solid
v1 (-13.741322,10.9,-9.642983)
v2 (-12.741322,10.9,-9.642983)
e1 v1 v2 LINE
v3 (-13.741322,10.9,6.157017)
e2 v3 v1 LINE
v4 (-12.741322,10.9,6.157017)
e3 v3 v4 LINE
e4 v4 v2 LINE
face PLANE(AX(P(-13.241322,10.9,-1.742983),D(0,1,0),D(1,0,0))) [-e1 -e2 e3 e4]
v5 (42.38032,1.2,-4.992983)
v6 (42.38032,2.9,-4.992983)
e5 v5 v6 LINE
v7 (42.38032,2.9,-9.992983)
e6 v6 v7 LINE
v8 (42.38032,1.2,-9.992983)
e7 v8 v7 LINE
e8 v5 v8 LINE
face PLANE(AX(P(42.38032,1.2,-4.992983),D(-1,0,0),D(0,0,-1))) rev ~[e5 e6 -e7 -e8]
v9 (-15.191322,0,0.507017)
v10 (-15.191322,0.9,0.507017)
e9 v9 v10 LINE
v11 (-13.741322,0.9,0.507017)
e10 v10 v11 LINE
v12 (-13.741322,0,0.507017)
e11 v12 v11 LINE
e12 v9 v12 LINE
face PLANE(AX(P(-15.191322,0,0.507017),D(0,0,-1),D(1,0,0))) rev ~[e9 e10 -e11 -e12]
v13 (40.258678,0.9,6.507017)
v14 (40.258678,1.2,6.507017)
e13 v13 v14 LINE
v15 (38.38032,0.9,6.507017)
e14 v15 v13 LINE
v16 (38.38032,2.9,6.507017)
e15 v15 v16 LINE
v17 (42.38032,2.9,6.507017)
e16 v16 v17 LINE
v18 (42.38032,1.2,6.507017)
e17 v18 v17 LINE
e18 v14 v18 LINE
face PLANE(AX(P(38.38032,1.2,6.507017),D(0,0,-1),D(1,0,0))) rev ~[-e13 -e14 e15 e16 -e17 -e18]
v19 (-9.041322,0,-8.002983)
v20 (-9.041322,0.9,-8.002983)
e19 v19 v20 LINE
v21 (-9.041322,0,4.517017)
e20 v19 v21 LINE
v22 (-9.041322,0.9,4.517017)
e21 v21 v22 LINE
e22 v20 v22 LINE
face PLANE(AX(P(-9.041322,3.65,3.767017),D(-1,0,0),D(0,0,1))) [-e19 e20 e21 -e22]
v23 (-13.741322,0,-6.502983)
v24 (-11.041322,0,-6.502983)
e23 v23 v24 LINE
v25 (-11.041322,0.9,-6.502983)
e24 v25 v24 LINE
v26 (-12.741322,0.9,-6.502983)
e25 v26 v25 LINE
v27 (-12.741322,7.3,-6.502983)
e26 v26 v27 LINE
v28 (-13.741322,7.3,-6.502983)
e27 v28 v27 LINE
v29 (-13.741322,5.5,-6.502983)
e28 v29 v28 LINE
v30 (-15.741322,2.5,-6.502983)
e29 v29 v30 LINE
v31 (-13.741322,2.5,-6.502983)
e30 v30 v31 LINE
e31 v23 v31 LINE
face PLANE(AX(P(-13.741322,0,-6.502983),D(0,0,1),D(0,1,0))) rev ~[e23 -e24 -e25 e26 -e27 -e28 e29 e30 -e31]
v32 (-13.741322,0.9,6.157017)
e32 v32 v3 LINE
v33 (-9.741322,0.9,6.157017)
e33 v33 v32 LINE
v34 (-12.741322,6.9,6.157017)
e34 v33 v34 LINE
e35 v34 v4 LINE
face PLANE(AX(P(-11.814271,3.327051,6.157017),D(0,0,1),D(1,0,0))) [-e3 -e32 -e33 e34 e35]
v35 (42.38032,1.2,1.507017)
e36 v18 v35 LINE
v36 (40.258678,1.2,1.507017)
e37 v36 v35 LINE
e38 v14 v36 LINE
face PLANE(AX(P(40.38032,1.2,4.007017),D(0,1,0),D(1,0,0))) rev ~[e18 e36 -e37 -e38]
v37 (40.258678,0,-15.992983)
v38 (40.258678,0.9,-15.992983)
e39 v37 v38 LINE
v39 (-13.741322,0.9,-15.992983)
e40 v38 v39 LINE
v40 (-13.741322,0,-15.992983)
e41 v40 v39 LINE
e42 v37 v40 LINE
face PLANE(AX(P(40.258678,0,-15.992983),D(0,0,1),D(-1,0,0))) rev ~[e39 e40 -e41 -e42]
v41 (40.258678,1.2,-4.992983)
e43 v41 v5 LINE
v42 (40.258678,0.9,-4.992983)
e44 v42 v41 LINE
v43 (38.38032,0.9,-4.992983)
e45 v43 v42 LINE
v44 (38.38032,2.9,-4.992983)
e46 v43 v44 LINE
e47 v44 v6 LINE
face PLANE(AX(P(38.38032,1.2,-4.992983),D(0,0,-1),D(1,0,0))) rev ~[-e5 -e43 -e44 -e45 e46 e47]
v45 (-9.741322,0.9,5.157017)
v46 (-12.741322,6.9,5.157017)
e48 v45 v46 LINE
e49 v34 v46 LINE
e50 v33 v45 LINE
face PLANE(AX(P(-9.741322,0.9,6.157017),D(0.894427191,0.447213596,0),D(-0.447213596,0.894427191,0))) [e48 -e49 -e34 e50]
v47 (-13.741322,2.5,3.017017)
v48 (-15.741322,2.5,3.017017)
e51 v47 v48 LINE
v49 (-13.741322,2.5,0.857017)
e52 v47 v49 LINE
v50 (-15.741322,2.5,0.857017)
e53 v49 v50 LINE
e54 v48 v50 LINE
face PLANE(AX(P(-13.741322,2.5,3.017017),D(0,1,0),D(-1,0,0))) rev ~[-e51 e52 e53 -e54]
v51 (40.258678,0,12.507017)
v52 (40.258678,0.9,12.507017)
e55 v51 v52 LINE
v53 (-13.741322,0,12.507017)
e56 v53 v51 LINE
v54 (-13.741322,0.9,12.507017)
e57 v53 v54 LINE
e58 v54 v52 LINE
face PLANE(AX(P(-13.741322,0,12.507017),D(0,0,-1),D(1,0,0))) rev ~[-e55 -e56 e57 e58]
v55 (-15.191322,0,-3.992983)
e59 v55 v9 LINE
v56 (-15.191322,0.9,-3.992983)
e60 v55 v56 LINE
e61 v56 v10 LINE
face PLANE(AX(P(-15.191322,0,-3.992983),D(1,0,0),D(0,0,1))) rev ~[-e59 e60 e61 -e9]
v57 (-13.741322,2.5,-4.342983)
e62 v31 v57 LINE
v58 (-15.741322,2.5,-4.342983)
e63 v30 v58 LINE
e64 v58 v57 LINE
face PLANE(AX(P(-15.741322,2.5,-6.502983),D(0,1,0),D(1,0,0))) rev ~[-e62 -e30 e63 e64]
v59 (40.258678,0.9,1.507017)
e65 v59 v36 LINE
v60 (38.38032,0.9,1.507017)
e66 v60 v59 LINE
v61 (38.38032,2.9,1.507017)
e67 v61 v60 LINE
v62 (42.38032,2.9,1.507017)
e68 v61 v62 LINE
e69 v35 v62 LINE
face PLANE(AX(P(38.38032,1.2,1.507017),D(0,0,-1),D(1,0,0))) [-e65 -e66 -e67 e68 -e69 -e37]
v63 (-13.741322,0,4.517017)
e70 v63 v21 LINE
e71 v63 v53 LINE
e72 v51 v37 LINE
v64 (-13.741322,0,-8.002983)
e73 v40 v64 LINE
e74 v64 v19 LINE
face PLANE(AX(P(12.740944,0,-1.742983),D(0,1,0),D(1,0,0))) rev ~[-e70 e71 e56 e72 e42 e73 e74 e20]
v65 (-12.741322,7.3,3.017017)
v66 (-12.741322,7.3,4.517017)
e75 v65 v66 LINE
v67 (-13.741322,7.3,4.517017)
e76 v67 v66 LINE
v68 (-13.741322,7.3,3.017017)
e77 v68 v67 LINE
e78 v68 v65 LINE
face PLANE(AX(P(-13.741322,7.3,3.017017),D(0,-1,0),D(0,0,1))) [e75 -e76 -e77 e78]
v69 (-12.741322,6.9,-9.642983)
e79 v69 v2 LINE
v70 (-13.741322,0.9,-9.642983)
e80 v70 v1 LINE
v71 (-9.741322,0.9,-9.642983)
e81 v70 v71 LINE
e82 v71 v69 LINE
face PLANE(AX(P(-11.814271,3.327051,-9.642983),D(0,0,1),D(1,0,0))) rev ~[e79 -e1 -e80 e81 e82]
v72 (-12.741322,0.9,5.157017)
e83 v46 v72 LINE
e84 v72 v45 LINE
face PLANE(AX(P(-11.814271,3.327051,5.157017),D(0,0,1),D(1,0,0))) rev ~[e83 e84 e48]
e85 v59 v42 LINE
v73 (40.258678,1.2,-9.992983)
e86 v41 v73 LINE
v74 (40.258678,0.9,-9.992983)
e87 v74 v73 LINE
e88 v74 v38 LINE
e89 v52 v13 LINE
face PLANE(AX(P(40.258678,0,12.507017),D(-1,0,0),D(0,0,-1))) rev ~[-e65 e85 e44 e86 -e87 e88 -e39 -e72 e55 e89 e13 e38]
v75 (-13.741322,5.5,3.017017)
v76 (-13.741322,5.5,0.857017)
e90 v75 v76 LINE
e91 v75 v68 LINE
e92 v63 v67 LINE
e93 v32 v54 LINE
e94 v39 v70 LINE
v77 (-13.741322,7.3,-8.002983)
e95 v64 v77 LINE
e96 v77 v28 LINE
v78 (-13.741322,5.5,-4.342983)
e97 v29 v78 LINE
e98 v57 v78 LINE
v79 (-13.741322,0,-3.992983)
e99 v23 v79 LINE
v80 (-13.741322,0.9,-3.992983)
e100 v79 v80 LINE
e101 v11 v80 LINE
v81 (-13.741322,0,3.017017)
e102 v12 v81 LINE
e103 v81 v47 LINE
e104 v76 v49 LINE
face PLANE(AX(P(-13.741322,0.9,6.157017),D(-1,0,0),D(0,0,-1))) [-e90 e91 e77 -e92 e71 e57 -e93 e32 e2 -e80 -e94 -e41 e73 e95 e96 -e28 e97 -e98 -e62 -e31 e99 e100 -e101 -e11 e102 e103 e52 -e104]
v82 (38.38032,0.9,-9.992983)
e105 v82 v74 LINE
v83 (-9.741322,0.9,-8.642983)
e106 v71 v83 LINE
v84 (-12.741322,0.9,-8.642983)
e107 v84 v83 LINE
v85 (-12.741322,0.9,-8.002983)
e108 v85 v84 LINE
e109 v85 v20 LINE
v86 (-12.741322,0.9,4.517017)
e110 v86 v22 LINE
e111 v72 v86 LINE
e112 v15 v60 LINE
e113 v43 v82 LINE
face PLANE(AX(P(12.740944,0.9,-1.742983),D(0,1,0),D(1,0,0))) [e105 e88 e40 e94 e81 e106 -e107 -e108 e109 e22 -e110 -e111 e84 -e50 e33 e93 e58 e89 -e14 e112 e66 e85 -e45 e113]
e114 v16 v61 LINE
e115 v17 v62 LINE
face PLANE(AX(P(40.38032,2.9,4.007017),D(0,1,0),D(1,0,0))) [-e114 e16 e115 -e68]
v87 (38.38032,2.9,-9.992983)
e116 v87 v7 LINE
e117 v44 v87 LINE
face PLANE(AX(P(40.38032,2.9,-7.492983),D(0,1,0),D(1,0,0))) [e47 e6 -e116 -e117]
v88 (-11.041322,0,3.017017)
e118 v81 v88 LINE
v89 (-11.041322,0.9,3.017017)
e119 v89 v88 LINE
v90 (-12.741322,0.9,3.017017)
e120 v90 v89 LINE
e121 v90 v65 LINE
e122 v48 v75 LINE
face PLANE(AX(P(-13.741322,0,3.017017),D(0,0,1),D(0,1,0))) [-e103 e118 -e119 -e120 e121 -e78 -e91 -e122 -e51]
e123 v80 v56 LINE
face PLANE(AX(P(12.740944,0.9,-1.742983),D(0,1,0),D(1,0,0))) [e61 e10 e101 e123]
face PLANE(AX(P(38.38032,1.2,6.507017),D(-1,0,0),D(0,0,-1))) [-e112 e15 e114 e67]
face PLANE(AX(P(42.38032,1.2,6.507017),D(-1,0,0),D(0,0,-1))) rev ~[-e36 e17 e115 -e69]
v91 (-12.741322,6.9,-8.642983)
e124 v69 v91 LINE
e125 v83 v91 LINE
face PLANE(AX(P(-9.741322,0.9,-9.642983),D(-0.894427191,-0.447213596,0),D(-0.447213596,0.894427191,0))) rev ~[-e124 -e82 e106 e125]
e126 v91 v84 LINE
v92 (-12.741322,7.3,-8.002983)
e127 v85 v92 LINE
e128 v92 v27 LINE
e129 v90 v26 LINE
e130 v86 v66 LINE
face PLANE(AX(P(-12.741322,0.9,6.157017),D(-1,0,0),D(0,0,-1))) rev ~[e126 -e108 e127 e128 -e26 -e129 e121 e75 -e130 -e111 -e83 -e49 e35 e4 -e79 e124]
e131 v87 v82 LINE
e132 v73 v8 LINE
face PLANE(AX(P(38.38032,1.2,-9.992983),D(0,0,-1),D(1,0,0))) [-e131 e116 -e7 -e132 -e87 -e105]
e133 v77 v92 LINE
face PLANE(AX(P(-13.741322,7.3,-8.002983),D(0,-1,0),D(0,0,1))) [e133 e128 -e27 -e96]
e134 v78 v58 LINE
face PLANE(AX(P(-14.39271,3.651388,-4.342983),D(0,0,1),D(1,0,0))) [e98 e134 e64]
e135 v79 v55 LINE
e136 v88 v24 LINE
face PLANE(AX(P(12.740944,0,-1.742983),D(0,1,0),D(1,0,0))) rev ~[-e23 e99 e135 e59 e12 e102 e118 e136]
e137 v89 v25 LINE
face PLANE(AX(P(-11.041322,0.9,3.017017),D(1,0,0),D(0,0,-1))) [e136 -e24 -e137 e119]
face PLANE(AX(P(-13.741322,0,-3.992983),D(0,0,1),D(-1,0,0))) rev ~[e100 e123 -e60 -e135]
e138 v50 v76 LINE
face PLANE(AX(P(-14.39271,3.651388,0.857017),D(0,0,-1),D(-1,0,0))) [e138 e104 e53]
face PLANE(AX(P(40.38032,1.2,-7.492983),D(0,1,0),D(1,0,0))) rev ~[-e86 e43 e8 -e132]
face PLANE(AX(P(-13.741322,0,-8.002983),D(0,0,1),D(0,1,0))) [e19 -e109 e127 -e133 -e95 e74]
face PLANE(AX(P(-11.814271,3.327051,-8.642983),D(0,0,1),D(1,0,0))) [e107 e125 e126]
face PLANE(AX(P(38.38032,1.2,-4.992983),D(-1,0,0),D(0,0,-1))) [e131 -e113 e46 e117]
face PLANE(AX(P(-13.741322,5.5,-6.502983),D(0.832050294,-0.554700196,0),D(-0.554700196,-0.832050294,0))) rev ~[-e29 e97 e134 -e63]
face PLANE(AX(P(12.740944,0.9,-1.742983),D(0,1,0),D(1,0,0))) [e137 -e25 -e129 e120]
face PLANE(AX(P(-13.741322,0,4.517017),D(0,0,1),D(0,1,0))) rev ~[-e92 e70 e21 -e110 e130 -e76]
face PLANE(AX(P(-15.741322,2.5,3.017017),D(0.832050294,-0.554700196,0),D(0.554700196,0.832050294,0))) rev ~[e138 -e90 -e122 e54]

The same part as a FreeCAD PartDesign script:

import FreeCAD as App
import Part
import Sketcher


def add_polygon(sketch, points):
    """Adds a closed chain of lines whose ends are joined by coincident constraints."""
    first, n = sketch.GeometryCount, len(points)
    for a, b in zip(points, points[1:] + points[:1]):
        sketch.addGeometry(Part.LineSegment(App.Vector(*a, 0), App.Vector(*b, 0)), False)
    for i in range(n):
        sketch.addConstraint(Sketcher.Constraint("Coincident", first + i, 2, first + (i + 1) % n, 1))

doc = App.newDocument("Part")
body = doc.addObject("PartDesign::Body", "Body")

# Sketch on XZ plane
sketch1 = body.newObject("Sketcher::SketchObject", "Sketch")
sketch1.AttachmentSupport = (doc.getObject("XZ_Plane"), [""])
sketch1.MapMode = "FlatFace"
add_polygon(sketch1, [(-13.741322, 0.507017), (-13.741322, 12.507017), (40.258678, 12.507017), (40.258678, -15.992983), (-13.741322, -15.992983), (-13.741322, -3.992983), (-15.191322, -3.992983), (-15.191322, 0.507017)])  # lines 0-7
sketch1.addConstraint([
    Sketcher.Constraint("Vertical", 0),
    Sketcher.Constraint("Horizontal", 1),
    Sketcher.Constraint("Vertical", 2),
    Sketcher.Constraint("Horizontal", 3),
    Sketcher.Constraint("Vertical", 4),
    Sketcher.Constraint("Horizontal", 5),
    Sketcher.Constraint("Vertical", 6),
    Sketcher.Constraint("Horizontal", 7),
    Sketcher.Constraint("Vertical", 0, 2, 3, 2),
    Sketcher.Constraint("Equal", 0, 4),
    Sketcher.Constraint("DistanceX", 1, 1, 1, 2, 54.0),
    Sketcher.Constraint("DistanceY", 0, 1, 0, 2, 12.0),
    Sketcher.Constraint("DistanceY", 2, 2, 2, 1, 28.5),
    Sketcher.Constraint("DistanceX", 5, 2, 5, 1, 1.45),
    Sketcher.Constraint("DistanceX", 0, 2, -1, 1, 13.741322),
    Sketcher.Constraint("DistanceY", -1, 1, 0, 2, 12.507017),
])
pad1 = body.newObject("PartDesign::Pad", "Pad")
pad1.Profile = sketch1
pad1.Length = 0.9
pad1.Reversed = True

# Sketch on XZ plane
sketch2 = body.newObject("Sketcher::SketchObject", "Sketch001")
sketch2.AttachmentSupport = (doc.getObject("XZ_Plane"), [""])
sketch2.MapMode = "FlatFace"
sketch2.AttachmentOffset = App.Placement(App.Vector(0, 0, -0.9), App.Rotation())
add_polygon(sketch2, [(38.38032, 1.507017), (38.38032, 6.507017), (40.258678, 6.507017), (40.258678, 1.507017)])  # lines 0-3
add_polygon(sketch2, [(38.38032, -9.992983), (38.38032, -4.992983), (40.258678, -4.992983), (40.258678, -9.992983)])  # lines 4-7
sketch2.addConstraint([
    Sketcher.Constraint("Vertical", 0),
    Sketcher.Constraint("Horizontal", 1),
    Sketcher.Constraint("Vertical", 2),
    Sketcher.Constraint("Horizontal", 3),
    Sketcher.Constraint("Vertical", 4),
    Sketcher.Constraint("Horizontal", 5),
    Sketcher.Constraint("Vertical", 6),
    Sketcher.Constraint("Horizontal", 7),
    Sketcher.Constraint("Vertical", 3, 2, 4, 2),
    Sketcher.Constraint("Vertical", 2, 2, 5, 2),
    Sketcher.Constraint("Equal", 2, 4),
    Sketcher.Constraint("DistanceY", 0, 1, 0, 2, 5.0),
    Sketcher.Constraint("DistanceY", 4, 2, 3, 2, 6.5),
    Sketcher.Constraint("DistanceX", 1, 1, 1, 2, 1.878358),
    Sketcher.Constraint("DistanceX", -1, 1, 0, 2, 38.38032),
    Sketcher.Constraint("DistanceY", -1, 1, 0, 2, 6.507017),
])
pad2 = body.newObject("PartDesign::Pad", "Pad001")
pad2.Profile = sketch2
pad2.Length = 0.3
pad2.Reversed = True

# Sketch on XZ plane
sketch3 = body.newObject("Sketcher::SketchObject", "Sketch002")
sketch3.AttachmentSupport = (doc.getObject("XZ_Plane"), [""])
sketch3.MapMode = "FlatFace"
sketch3.AttachmentOffset = App.Placement(App.Vector(0, 0, -1.2), App.Rotation())
add_polygon(sketch3, [(38.38032, 1.507017), (38.38032, 6.507017), (42.38032, 6.507017), (42.38032, 1.507017)])  # lines 0-3
sketch3.addConstraint([
    Sketcher.Constraint("Vertical", 0),
    Sketcher.Constraint("Horizontal", 1),
    Sketcher.Constraint("Vertical", 2),
    Sketcher.Constraint("Horizontal", 3),
    Sketcher.Constraint("DistanceX", 1, 1, 1, 2, 4.0),
    Sketcher.Constraint("DistanceY", 0, 1, 0, 2, 5.0),
    Sketcher.Constraint("DistanceX", -1, 1, 0, 2, 38.38032),
    Sketcher.Constraint("DistanceY", -1, 1, 0, 2, 6.507017),
])
pad3 = body.newObject("PartDesign::Pad", "Pad002")
pad3.Profile = sketch3
pad3.Length = 1.7
pad3.Reversed = True

# Sketch on XZ plane
sketch4 = body.newObject("Sketcher::SketchObject", "Sketch003")
sketch4.AttachmentSupport = (doc.getObject("XZ_Plane"), [""])
sketch4.MapMode = "FlatFace"
sketch4.AttachmentOffset = App.Placement(App.Vector(0, 0, -1.2), App.Rotation())
add_polygon(sketch4, [(38.38032, -9.992983), (38.38032, -4.992983), (42.38032, -4.992983), (42.38032, -9.992983)])  # lines 0-3
sketch4.addConstraint([
    Sketcher.Constraint("Vertical", 0),
    Sketcher.Constraint("Horizontal", 1),
    Sketcher.Constraint("Vertical", 2),
    Sketcher.Constraint("Horizontal", 3),
    Sketcher.Constraint("DistanceX", 1, 1, 1, 2, 4.0),
    Sketcher.Constraint("DistanceY", 0, 1, 0, 2, 5.0),
    Sketcher.Constraint("DistanceX", -1, 1, 0, 2, 38.38032),
    Sketcher.Constraint("DistanceY", 0, 2, -1, 1, 4.992983),
])
pad4 = body.newObject("PartDesign::Pad", "Pad003")
pad4.Profile = sketch4
pad4.Length = 1.7
pad4.Reversed = True

# Sketch on XZ plane
sketch5 = body.newObject("Sketcher::SketchObject", "Sketch004")
sketch5.AttachmentSupport = (doc.getObject("XZ_Plane"), [""])
sketch5.MapMode = "FlatFace"
sketch5.AttachmentOffset = App.Placement(App.Vector(0, 0, -0.9), App.Rotation())
add_polygon(sketch5, [(-13.741322, -9.642983), (-13.741322, 6.157017), (-12.741322, 6.157017), (-12.741322, -9.642983)])  # lines 0-3
sketch5.addConstraint([
    Sketcher.Constraint("Vertical", 0),
    Sketcher.Constraint("Horizontal", 1),
    Sketcher.Constraint("Vertical", 2),
    Sketcher.Constraint("Horizontal", 3),
    Sketcher.Constraint("DistanceX", 1, 1, 1, 2, 1.0),
    Sketcher.Constraint("DistanceY", 0, 1, 0, 2, 15.8),
    Sketcher.Constraint("DistanceX", 0, 2, -1, 1, 13.741322),
    Sketcher.Constraint("DistanceY", -1, 1, 0, 2, 6.157017),
])
pad5 = body.newObject("PartDesign::Pad", "Pad004")
pad5.Profile = sketch5
pad5.Length = 10
pad5.Reversed = True

# Sketch on XY plane
sketch6 = body.newObject("Sketcher::SketchObject", "Sketch005")
sketch6.AttachmentSupport = (doc.getObject("XY_Plane"), [""])
sketch6.MapMode = "FlatFace"
sketch6.AttachmentOffset = App.Placement(App.Vector(0, 0, -6.502983), App.Rotation())
add_polygon(sketch6, [(-13.741322, 5.5), (-13.741322, 2.5), (-15.741322, 2.5)])  # lines 0-2
sketch6.addConstraint([
    Sketcher.Constraint("Vertical", 0),
    Sketcher.Constraint("Horizontal", 1),
    Sketcher.Constraint("DistanceX", 1, 2, 1, 1, 2.0),
    Sketcher.Constraint("DistanceY", 0, 2, 0, 1, 3.0),
    Sketcher.Constraint("DistanceY", -1, 1, 0, 2, 2.5),
    Sketcher.Constraint("DistanceX", 0, 2, -1, 1, 13.741322),
])
pad6 = body.newObject("PartDesign::Pad", "Pad005")
pad6.Profile = sketch6
pad6.Length = 2.16

# Sketch on XY plane
sketch7 = body.newObject("Sketcher::SketchObject", "Sketch006")
sketch7.AttachmentSupport = (doc.getObject("XY_Plane"), [""])
sketch7.MapMode = "FlatFace"
sketch7.AttachmentOffset = App.Placement(App.Vector(0, 0, 3.017017), App.Rotation())
add_polygon(sketch7, [(-13.741322, 5.5), (-15.741322, 2.5), (-13.741322, 2.5)])  # lines 0-2
sketch7.addConstraint([
    Sketcher.Constraint("Horizontal", 1),
    Sketcher.Constraint("Vertical", 2),
    Sketcher.Constraint("DistanceX", 1, 1, 1, 2, 2.0),
    Sketcher.Constraint("DistanceY", 2, 1, 2, 2, 3.0),
    Sketcher.Constraint("DistanceY", -1, 1, 0, 2, 2.5),
    Sketcher.Constraint("DistanceX", 0, 2, -1, 1, 15.741322),
])
pad7 = body.newObject("PartDesign::Pad", "Pad006")
pad7.Profile = sketch7
pad7.Length = 2.16
pad7.Reversed = True

# Sketch on XY plane
sketch8 = body.newObject("Sketcher::SketchObject", "Sketch007")
sketch8.AttachmentSupport = (doc.getObject("XY_Plane"), [""])
sketch8.MapMode = "FlatFace"
sketch8.AttachmentOffset = App.Placement(App.Vector(0, 0, -9.642983), App.Rotation())
add_polygon(sketch8, [(-9.741322, 0.9), (-12.741322, 0.9), (-12.741322, 6.9)])  # lines 0-2
sketch8.addConstraint([
    Sketcher.Constraint("Horizontal", 0),
    Sketcher.Constraint("Vertical", 1),
    Sketcher.Constraint("DistanceX", 0, 2, 0, 1, 3.0),
    Sketcher.Constraint("DistanceY", 1, 1, 1, 2, 6.0),
    Sketcher.Constraint("DistanceY", -1, 1, 0, 2, 0.9),
    Sketcher.Constraint("DistanceX", 0, 2, -1, 1, 12.741322),
])
pad8 = body.newObject("PartDesign::Pad", "Pad007")
pad8.Profile = sketch8
pad8.Length = 1

# Sketch on XY plane
sketch9 = body.newObject("Sketcher::SketchObject", "Sketch008")
sketch9.AttachmentSupport = (doc.getObject("XY_Plane"), [""])
sketch9.MapMode = "FlatFace"
sketch9.AttachmentOffset = App.Placement(App.Vector(0, 0, 6.157017), App.Rotation())
add_polygon(sketch9, [(-12.741322, 0.9), (-9.741322, 0.9), (-12.741322, 6.9)])  # lines 0-2
sketch9.addConstraint([
    Sketcher.Constraint("Horizontal", 0),
    Sketcher.Constraint("Vertical", 2),
    Sketcher.Constraint("DistanceX", 0, 1, 0, 2, 3.0),
    Sketcher.Constraint("DistanceY", 2, 2, 2, 1, 6.0),
    Sketcher.Constraint("DistanceY", -1, 1, 0, 2, 0.9),
    Sketcher.Constraint("DistanceX", 0, 2, -1, 1, 9.741322),
])
pad9 = body.newObject("PartDesign::Pad", "Pad008")
pad9.Profile = sketch9
pad9.Length = 1
pad9.Reversed = True

# Sketch on YZ plane
sketch10 = body.newObject("Sketcher::SketchObject", "Sketch009")
sketch10.AttachmentSupport = (doc.getObject("YZ_Plane"), [""])
sketch10.MapMode = "FlatFace"
sketch10.AttachmentOffset = App.Placement(App.Vector(0, 0, -13.741322), App.Rotation())
add_polygon(sketch10, [(7.3, 3.017017), (0, 3.017017), (0, 4.517017), (7.3, 4.517017)])  # lines 0-3
add_polygon(sketch10, [(7.3, -8.002983), (0, -8.002983), (0, -6.502983), (7.3, -6.502983)])  # lines 4-7
sketch10.addConstraint([
    Sketcher.Constraint("Horizontal", 0),
    Sketcher.Constraint("Vertical", 1),
    Sketcher.Constraint("Horizontal", 2),
    Sketcher.Constraint("Vertical", 3),
    Sketcher.Constraint("Horizontal", 4),
    Sketcher.Constraint("Vertical", 5),
    Sketcher.Constraint("Horizontal", 6),
    Sketcher.Constraint("Vertical", 7),
    Sketcher.Constraint("PointOnObject", 0, 2, -2),
    Sketcher.Constraint("PointOnObject", 4, 2, -2),
    Sketcher.Constraint("Vertical", 3, 2, 6, 2),
    Sketcher.Constraint("Equal", 3, 5),
    Sketcher.Constraint("DistanceX", 0, 2, 0, 1, 7.3),
    Sketcher.Constraint("DistanceY", 1, 1, 1, 2, 1.5),
    Sketcher.Constraint("DistanceY", 4, 2, 0, 2, 11.02),
    Sketcher.Constraint("DistanceY", -1, 1, 0, 2, 3.017017),
])
pocket1 = body.newObject("PartDesign::Pocket", "Pocket")
pocket1.Profile = sketch10
pocket1.Length = 4.7
pocket1.Reversed = True

# Sketch on XZ plane
sketch11 = body.newObject("Sketcher::SketchObject", "Sketch010")
sketch11.AttachmentSupport = (doc.getObject("XZ_Plane"), [""])
sketch11.MapMode = "FlatFace"
sketch11.AttachmentOffset = App.Placement(App.Vector(0, 0, -0.9), App.Rotation())
add_polygon(sketch11, [(-11.041322, -6.502983), (-11.041322, 3.017017), (-9.041322, 3.017017), (-9.041322, -6.502983)])  # lines 0-3
sketch11.addConstraint([
    Sketcher.Constraint("Vertical", 0),
    Sketcher.Constraint("Horizontal", 1),
    Sketcher.Constraint("Vertical", 2),
    Sketcher.Constraint("Horizontal", 3),
    Sketcher.Constraint("DistanceX", 1, 1, 1, 2, 2.0),
    Sketcher.Constraint("DistanceY", 0, 1, 0, 2, 9.52),
    Sketcher.Constraint("DistanceX", 0, 2, -1, 1, 11.041322),
    Sketcher.Constraint("DistanceY", -1, 1, 0, 2, 3.017017),
])
pocket2 = body.newObject("PartDesign::Pocket", "Pocket001")
pocket2.Profile = sketch11
pocket2.Length = 4.7
pocket2.Reversed = True

doc.recompute()
